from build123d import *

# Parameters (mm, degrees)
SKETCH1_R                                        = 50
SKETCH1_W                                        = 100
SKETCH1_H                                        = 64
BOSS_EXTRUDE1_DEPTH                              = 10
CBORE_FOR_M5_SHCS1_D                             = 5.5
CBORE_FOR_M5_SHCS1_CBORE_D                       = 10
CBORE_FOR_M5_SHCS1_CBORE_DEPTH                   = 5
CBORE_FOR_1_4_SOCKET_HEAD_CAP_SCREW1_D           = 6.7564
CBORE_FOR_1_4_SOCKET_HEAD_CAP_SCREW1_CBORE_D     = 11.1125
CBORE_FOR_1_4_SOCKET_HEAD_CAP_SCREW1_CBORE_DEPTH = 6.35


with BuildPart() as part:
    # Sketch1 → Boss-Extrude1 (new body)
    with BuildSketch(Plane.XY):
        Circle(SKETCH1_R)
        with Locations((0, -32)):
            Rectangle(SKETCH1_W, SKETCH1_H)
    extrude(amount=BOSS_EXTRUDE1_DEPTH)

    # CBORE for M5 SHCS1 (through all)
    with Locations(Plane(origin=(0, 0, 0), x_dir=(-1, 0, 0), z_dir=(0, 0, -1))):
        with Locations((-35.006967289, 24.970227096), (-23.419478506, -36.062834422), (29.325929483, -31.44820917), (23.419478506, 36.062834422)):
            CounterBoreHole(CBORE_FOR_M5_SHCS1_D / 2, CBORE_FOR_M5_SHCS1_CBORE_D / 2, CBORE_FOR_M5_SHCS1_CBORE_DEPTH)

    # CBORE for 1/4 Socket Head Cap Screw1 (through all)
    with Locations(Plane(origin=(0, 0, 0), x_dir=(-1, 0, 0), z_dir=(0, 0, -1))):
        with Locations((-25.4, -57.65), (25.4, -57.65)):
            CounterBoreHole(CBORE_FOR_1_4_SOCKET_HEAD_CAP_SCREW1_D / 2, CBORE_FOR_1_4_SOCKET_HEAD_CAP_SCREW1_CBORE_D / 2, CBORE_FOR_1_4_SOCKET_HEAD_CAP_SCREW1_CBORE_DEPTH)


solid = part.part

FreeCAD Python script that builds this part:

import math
import FreeCAD as App
import Part
import Sketcher

V = App.Vector

doc = App.newDocument("Part")
body = doc.addObject("PartDesign::Body", "Body")

# Sketch on XY plane
sketch1 = body.newObject("Sketcher::SketchObject", "Sketch")
sketch1.AttachmentSupport = (doc.getObject("XY_Plane"), [""])
sketch1.MapMode = "FlatFace"
sketch1.addGeometry([
    Part.ArcOfCircle(Part.Circle(V(0, 0, 0), V(0, 0, 1), 50), math.radians(0), math.radians(180)),
    Part.LineSegment(V(-50, 0, 0), V(-50, -64, 0)),
    Part.LineSegment(V(-50, -64, 0), V(50, -64, 0)),
    Part.LineSegment(V(50, -64, 0), V(50, 0, 0)),
], False)
sketch1.addConstraint([
    Sketcher.Constraint("Tangent", 0, 2, 1, 1),
    Sketcher.Constraint("Coincident", 1, 2, 2, 1),
    Sketcher.Constraint("Coincident", 2, 2, 3, 1),
    Sketcher.Constraint("Tangent", 3, 2, 0, 1),
    Sketcher.Constraint("Vertical", 1),
    Sketcher.Constraint("Horizontal", 2),
    Sketcher.Constraint("Vertical", 3),
    Sketcher.Constraint("Coincident", 0, 3, -1, 1),
    Sketcher.Constraint("Radius", 0, 50.0),
    Sketcher.Constraint("DistanceY", 1, 2, 1, 1, 64.0),
])
pad1 = body.newObject("PartDesign::Pad", "Pad")
pad1.Profile = sketch1
pad1.Length = 10

# Sketch on XY plane
sketch2 = body.newObject("Sketcher::SketchObject", "Sketch001")
sketch2.AttachmentSupport = (doc.getObject("XY_Plane"), [""])
sketch2.MapMode = "FlatFace"
sketch2.addGeometry([
    Part.Circle(V(35.006967, 24.970227, 0), V(0, 0, 1), 2.75),
    Part.Circle(V(23.419479, -36.062834, 0), V(0, 0, 1), 2.75),
    Part.Circle(V(-29.325929, -31.448209, 0), V(0, 0, 1), 2.75),
    Part.Circle(V(-23.419479, 36.062834, 0), V(0, 0, 1), 2.75),
], False)
sketch2.addConstraint([
    Sketcher.Constraint("Equal", 0, 1),
    Sketcher.Constraint("Equal", 1, 2),
    Sketcher.Constraint("Equal", 2, 3),
    Sketcher.Constraint("Symmetric", 1, 3, 3, 3, -1, 1),
    Sketcher.Constraint("Diameter", 0, 5.5),
    Sketcher.Constraint("DistanceX", -1, 1, 1, 3, 23.419479),
    Sketcher.Constraint("DistanceX", 2, 3, -1, 1, 29.325929),
    Sketcher.Constraint("DistanceY", 2, 3, -1, 1, 31.448209),
    Sketcher.Constraint("DistanceX", 1, 3, 0, 3, 11.587489),
    Sketcher.Constraint("DistanceY", 1, 3, 0, 3, 61.033062),
    Sketcher.Constraint("DistanceY", 1, 3, 3, 3, 72.125669),
])
doc.recompute()
hole = body.newObject("PartDesign::Hole", "Hole")
hole.Profile = sketch2
hole.ThreadType = "None"
hole.Diameter = 5.5
hole.DepthType = "ThroughAll"
hole.HoleCutType = "Counterbore"
hole.HoleCutDiameter = 10
hole.HoleCutDepth = 5
hole.Reversed = True

# Sketch on XY plane
sketch3 = body.newObject("Sketcher::SketchObject", "Sketch002")
sketch3.AttachmentSupport = (doc.getObject("XY_Plane"), [""])
sketch3.MapMode = "FlatFace"
sketch3.addGeometry([
    Part.Circle(V(25.4, -57.65, 0), V(0, 0, 1), 3.3782),
    Part.Circle(V(-25.4, -57.65, 0), V(0, 0, 1), 3.3782),
], False)
sketch3.addConstraint([
    Sketcher.Constraint("Equal", 0, 1),
    Sketcher.Constraint("Symmetric", 0, 3, 1, 3, -2),
    Sketcher.Constraint("Diameter", 0, 6.7564),
    Sketcher.Constraint("DistanceX", -1, 1, 0, 3, 25.4),
    Sketcher.Constraint("DistanceY", 0, 3, -1, 1, 57.65),
])
doc.recompute()
hole2 = body.newObject("PartDesign::Hole", "Hole001")
hole2.Profile = sketch3
hole2.ThreadType = "None"
hole2.Diameter = 6.7564
hole2.DepthType = "ThroughAll"
hole2.HoleCutType = "Counterbore"
hole2.HoleCutDiameter = 11.1125
hole2.HoleCutDepth = 6.35
hole2.Reversed = True

doc.recompute()
